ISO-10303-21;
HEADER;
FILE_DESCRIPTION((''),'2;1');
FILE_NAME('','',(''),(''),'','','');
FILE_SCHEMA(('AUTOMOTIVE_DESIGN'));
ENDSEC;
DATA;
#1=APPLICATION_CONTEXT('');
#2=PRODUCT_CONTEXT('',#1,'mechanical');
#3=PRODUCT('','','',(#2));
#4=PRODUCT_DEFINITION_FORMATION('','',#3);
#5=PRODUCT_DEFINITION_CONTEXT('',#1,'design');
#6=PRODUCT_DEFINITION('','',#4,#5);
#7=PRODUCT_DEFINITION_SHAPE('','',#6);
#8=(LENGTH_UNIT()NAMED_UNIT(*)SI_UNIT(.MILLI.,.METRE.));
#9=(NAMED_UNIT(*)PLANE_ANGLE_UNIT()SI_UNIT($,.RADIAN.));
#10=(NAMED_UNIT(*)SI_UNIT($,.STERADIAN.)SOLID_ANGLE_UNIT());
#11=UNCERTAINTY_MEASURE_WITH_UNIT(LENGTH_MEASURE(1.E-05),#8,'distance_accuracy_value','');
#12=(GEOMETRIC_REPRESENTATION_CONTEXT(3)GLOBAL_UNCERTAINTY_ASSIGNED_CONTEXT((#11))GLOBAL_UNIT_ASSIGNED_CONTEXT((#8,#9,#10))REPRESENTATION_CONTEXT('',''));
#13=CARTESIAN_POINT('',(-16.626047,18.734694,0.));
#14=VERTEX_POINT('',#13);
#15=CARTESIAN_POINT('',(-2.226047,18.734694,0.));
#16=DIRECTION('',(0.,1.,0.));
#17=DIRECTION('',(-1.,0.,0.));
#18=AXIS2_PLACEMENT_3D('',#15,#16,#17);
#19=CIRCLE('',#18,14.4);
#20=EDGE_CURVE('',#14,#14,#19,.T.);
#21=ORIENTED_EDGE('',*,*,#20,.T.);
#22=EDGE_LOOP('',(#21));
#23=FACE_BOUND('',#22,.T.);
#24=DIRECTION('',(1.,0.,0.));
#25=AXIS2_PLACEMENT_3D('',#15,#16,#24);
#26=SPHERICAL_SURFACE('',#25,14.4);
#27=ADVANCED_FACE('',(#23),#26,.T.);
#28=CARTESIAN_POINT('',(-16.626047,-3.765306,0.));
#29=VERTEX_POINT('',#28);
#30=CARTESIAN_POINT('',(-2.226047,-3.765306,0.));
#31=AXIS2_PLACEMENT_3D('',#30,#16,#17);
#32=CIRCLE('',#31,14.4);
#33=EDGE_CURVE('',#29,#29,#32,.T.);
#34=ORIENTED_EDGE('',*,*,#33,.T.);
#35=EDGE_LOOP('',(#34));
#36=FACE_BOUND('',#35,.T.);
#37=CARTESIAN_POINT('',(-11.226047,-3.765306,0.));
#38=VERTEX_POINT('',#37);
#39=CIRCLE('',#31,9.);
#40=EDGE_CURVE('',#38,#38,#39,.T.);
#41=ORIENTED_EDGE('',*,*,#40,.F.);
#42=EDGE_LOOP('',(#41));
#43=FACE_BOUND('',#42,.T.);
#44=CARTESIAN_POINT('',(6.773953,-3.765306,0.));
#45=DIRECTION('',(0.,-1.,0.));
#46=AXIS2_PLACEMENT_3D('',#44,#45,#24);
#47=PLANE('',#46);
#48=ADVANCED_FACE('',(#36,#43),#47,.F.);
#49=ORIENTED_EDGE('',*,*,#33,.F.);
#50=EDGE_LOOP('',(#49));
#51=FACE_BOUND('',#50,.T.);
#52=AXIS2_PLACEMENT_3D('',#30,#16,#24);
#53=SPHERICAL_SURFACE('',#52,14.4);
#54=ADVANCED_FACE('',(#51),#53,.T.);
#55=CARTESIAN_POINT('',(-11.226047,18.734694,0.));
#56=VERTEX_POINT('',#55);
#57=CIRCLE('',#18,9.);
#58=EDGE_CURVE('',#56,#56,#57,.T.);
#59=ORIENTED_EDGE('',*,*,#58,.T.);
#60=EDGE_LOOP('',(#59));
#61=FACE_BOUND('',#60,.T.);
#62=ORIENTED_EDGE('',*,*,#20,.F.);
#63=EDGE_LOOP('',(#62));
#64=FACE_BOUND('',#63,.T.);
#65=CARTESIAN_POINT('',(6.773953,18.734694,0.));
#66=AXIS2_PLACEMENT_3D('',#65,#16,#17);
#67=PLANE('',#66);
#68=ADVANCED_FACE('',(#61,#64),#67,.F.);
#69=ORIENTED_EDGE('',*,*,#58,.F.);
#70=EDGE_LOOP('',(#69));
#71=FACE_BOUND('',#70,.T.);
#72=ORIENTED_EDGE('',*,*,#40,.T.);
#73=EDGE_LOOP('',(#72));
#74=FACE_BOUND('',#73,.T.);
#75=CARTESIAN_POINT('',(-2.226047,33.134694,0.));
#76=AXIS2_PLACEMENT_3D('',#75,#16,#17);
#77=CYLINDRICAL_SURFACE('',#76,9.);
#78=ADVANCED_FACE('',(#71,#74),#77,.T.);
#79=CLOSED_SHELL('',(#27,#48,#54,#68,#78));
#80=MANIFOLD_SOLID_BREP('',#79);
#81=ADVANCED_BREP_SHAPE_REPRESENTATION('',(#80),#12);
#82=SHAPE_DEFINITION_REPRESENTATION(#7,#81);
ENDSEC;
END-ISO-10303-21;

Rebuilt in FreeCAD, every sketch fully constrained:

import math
import FreeCAD as App
import Part
import Sketcher

doc = App.newDocument("Part")
body = doc.addObject("PartDesign::Body", "Body")

# Sketch on XY plane
sketch1 = body.newObject("Sketcher::SketchObject", "Sketch")
sketch1.AttachmentSupport = (doc.getObject("XY_Plane"), [""])
sketch1.MapMode = "FlatFace"
sketch1.addGeometry(Part.LineSegment(App.Vector(7, -4, 0), App.Vector(7, 19, 0)), False)
sketch1.addGeometry(Part.LineSegment(App.Vector(7, 19, 0), App.Vector(12, 19, 0)), False)
sketch1.addGeometry(Part.ArcOfCircle(Part.Circle(App.Vector(-2, 19, 0), App.Vector(0, 0, 1), 14), math.radians(0), math.radians(90)), False)
sketch1.addGeometry(Part.LineSegment(App.Vector(-2, 33, 0), App.Vector(-2, -18, 0)), False)
sketch1.addGeometry(Part.ArcOfCircle(Part.Circle(App.Vector(-2, -4, 0), App.Vector(0, 0, 1), 14), math.radians(-90), math.radians(0)), False)
sketch1.addGeometry(Part.LineSegment(App.Vector(12, -4, 0), App.Vector(7, -4, 0)), False)
sketch1.addGeometry(Part.LineSegment(App.Vector(-2, 33, 0), App.Vector(-2, -18, 0)), True)  # axis
sketch1.addConstraint(Sketcher.Constraint("Coincident", 0, 2, 1, 1))
sketch1.addConstraint(Sketcher.Constraint("Coincident", 1, 2, 2, 1))
sketch1.addConstraint(Sketcher.Constraint("Coincident", 2, 2, 3, 1))
sketch1.addConstraint(Sketcher.Constraint("Coincident", 3, 2, 4, 1))
sketch1.addConstraint(Sketcher.Constraint("Coincident", 4, 2, 5, 1))
sketch1.addConstraint(Sketcher.Constraint("Coincident", 5, 2, 0, 1))
sketch1.addConstraint(Sketcher.Constraint("Vertical", 0))
sketch1.addConstraint(Sketcher.Constraint("Horizontal", 1))
sketch1.addConstraint(Sketcher.Constraint("Vertical", 3))
sketch1.addConstraint(Sketcher.Constraint("Horizontal", 5))
sketch1.addConstraint(Sketcher.Constraint("Vertical", 6))
sketch1.addConstraint(Sketcher.Constraint("Coincident", 6, 1, 2, 2))
sketch1.addConstraint(Sketcher.Constraint("Equal", 2, 4))
sketch1.addConstraint(Sketcher.Constraint("Horizontal", 2, 3, 0, 2))
sketch1.addConstraint(Sketcher.Constraint("Vertical", 2, 3, 4, 3))
sketch1.addConstraint(Sketcher.Constraint("Vertical", 4, 3, 2, 2))
sketch1.addConstraint(Sketcher.Constraint("Equal", 3, 6))
sketch1.addConstraint(Sketcher.Constraint("Radius", 2, 14.4))
sketch1.addConstraint(Sketcher.Constraint("DistanceX", 1, 1, 1, 2, 5.4))
sketch1.addConstraint(Sketcher.Constraint("DistanceY", 0, 1, 0, 2, 22.5))
sketch1.addConstraint(Sketcher.Constraint("DistanceY", 3, 2, 3, 1, 51.3))
sketch1.addConstraint(Sketcher.Constraint("DistanceX", 2, 3, -1, 1, 2.226047))
sketch1.addConstraint(Sketcher.Constraint("DistanceY", -1, 1, 2, 3, 18.734694))
revolution = body.newObject("PartDesign::Revolution", "Revolution")
revolution.Profile = sketch1
revolution.ReferenceAxis = (sketch1, ["Axis0"])
revolution.Angle = 360

doc.recompute()
